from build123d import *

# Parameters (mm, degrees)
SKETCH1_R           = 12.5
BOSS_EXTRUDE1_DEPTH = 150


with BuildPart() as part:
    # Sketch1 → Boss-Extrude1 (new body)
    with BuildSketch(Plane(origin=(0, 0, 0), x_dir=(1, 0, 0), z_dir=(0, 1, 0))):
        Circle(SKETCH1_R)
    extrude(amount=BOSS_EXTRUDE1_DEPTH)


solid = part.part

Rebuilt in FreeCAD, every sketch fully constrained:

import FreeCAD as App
import Part
import Sketcher

doc = App.newDocument("Part")
body = doc.addObject("PartDesign::Body", "Body")

sketch1 = doc.addObject("Sketcher::SketchObject", "Sketch")
body.addObject(sketch1)
sketch1.AttachmentSupport = (doc.XZ_Plane, [""])
sketch1.MapMode = "FlatFace"
sketch1.addGeometry(Part.Circle(App.Vector(0, 0, 0), App.Vector(0, 0, 1), 12), False)
sketch1.addConstraint(Sketcher.Constraint("Coincident", 0, 3, -1, 1))
sketch1.addConstraint(Sketcher.Constraint("Diameter", 0, 25.0))
pad1 = doc.addObject("PartDesign::Pad", "Pad")
body.addObject(pad1)
pad1.Profile = sketch1
pad1.Length = 150
pad1.Reversed = True

doc.recompute()
